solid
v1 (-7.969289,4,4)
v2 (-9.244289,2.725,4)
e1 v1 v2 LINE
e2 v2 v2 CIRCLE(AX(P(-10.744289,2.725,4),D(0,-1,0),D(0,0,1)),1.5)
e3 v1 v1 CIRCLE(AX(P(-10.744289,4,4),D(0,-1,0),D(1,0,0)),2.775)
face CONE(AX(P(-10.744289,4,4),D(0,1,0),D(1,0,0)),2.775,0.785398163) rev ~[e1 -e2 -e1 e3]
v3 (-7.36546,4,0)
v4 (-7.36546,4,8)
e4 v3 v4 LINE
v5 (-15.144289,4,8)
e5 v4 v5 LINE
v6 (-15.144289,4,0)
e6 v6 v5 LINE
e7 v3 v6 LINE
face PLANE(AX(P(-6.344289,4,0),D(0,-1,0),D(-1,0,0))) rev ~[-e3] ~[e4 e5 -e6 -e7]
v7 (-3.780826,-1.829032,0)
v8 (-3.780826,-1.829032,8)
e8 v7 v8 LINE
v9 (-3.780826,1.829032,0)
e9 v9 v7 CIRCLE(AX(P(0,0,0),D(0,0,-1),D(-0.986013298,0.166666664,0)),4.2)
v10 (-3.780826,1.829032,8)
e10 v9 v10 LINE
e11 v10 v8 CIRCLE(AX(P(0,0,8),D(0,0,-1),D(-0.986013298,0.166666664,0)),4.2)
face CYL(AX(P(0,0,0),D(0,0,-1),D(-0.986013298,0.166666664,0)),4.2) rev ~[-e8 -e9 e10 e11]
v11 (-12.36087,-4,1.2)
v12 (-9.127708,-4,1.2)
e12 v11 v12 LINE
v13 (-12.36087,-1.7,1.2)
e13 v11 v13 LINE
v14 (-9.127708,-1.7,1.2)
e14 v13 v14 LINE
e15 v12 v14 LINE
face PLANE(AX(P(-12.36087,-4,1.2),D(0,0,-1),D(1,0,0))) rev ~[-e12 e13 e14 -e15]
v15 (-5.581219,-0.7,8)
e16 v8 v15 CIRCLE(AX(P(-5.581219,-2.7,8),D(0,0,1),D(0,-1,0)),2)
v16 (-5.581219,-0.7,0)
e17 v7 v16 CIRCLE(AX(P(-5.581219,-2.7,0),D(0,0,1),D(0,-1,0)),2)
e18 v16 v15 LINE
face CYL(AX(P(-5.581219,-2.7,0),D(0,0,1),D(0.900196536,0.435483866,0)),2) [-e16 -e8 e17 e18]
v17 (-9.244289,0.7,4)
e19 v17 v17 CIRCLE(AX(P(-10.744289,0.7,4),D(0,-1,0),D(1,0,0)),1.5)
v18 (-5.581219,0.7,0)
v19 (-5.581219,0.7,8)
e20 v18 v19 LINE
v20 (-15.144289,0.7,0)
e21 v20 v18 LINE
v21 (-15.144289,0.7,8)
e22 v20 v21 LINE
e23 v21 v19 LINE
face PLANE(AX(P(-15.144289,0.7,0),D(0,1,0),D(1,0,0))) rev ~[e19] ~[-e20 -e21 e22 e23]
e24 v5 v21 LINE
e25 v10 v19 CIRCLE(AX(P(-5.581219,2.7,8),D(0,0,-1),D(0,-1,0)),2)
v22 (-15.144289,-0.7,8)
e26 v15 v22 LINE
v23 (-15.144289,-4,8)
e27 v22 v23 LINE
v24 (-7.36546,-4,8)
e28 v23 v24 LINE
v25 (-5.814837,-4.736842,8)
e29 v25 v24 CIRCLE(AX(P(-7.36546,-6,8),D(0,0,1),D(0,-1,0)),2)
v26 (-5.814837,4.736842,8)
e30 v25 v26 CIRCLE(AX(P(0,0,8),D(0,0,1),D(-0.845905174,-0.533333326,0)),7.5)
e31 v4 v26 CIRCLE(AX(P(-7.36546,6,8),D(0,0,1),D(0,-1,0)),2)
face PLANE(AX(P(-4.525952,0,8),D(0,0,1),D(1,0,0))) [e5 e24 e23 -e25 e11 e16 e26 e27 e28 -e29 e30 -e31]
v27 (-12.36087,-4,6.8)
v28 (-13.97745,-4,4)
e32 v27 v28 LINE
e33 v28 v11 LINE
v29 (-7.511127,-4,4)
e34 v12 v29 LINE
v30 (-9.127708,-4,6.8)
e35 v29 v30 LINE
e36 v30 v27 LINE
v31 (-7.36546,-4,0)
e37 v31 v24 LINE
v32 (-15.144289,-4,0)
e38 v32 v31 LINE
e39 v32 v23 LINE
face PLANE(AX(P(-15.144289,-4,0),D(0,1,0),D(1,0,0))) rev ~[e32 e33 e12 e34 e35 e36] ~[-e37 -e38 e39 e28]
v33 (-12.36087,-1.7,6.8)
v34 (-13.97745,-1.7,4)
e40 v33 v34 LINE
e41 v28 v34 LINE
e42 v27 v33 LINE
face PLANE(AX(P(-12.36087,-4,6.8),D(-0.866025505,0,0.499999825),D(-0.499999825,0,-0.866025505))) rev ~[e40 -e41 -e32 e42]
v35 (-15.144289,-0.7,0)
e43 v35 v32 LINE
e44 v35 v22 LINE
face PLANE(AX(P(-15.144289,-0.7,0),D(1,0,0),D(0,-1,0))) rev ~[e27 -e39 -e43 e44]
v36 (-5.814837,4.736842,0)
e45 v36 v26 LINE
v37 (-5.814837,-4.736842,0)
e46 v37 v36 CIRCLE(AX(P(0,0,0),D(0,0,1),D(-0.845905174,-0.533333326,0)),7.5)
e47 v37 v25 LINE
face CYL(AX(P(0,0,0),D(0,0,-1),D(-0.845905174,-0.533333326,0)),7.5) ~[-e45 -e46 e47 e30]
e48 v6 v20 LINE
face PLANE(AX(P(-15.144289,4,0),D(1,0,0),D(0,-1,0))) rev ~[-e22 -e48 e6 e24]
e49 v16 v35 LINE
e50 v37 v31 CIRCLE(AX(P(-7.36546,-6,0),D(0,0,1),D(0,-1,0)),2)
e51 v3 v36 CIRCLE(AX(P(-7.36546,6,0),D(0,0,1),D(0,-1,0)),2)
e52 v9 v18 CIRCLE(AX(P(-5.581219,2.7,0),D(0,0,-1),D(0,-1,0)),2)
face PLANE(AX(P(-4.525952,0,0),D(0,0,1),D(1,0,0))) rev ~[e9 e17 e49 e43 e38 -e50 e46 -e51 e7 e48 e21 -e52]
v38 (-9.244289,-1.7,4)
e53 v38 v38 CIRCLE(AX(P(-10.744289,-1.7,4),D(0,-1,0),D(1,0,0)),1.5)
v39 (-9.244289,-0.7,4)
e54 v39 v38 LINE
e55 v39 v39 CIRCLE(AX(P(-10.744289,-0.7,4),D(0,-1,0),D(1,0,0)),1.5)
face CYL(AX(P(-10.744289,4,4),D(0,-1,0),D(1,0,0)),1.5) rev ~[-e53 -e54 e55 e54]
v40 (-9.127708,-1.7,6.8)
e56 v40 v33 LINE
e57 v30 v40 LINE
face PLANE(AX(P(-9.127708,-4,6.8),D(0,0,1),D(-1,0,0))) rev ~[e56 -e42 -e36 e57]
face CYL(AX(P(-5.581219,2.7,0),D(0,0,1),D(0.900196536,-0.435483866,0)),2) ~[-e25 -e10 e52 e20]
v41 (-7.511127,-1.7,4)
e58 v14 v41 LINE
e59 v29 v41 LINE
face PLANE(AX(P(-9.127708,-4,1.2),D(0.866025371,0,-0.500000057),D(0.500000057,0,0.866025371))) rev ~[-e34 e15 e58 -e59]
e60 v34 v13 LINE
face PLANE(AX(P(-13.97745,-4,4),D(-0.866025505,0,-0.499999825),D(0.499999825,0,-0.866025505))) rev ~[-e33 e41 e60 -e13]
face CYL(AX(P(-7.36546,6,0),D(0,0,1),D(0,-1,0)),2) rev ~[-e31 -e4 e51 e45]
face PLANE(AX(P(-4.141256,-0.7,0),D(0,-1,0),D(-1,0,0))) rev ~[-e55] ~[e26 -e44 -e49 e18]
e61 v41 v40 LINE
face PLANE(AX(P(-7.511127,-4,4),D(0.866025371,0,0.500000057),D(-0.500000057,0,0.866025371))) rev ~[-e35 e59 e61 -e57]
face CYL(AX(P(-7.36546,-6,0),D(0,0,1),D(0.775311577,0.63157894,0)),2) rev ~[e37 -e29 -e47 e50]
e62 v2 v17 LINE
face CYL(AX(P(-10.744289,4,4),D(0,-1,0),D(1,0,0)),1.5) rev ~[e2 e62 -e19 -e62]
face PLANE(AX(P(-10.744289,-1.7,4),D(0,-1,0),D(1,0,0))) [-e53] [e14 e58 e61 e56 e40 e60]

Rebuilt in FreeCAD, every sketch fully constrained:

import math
import FreeCAD as App
import Part
import Sketcher
from FreeCAD import Vector
Q = App.Units.Quantity


def edges_at(feature, points):
    """Names of the edges that pass closest to the given points."""
    edges = feature.Shape.Edges
    near = lambda p: min(range(len(edges)), key=lambda i: edges[i].distToShape(Part.Vertex(*p))[0])
    return sorted({f"Edge{near(p) + 1}" for p in points})

doc = App.newDocument("Part")
body = doc.addObject("PartDesign::Body", "Body")

# Sketch on XY plane
sketch1 = body.newObject("Sketcher::SketchObject", "Sketch")
sketch1.AttachmentSupport = (doc.getObject("XY_Plane"), [""])
sketch1.MapMode = "FlatFace"
sketch1.addGeometry(Part.ArcOfCircle(Part.Circle(Vector(0, 0, 0), Vector(0, 0, 1), 4.2), math.radians(-170), math.radians(170)), False)
sketch1.addGeometry(Part.LineSegment(Vector(-4.1, -0.7, 0), Vector(-15.1, -0.7, 0)), False)
sketch1.addGeometry(Part.LineSegment(Vector(-15.1, -0.7, 0), Vector(-15.1, -4, 0)), False)
sketch1.addGeometry(Part.LineSegment(Vector(-15.1, -4, 0), Vector(-6.3, -4, 0)), False)
sketch1.addGeometry(Part.ArcOfCircle(Part.Circle(Vector(0, 0, 0), Vector(0, 0, 1), 7.5), math.radians(-148), math.radians(148)), False)
sketch1.addGeometry(Part.LineSegment(Vector(-6.3, 4, 0), Vector(-15.1, 4, 0)), False)
sketch1.addGeometry(Part.LineSegment(Vector(-15.1, 4, 0), Vector(-15.1, 0.7, 0)), False)
sketch1.addGeometry(Part.LineSegment(Vector(-15.1, 0.7, 0), Vector(-4.1, 0.7, 0)), False)
sketch1.addConstraint(Sketcher.Constraint("Coincident", 0, 1, 1, 1))
sketch1.addConstraint(Sketcher.Constraint("Coincident", 1, 2, 2, 1))
sketch1.addConstraint(Sketcher.Constraint("Coincident", 2, 2, 3, 1))
sketch1.addConstraint(Sketcher.Constraint("Coincident", 3, 2, 4, 1))
sketch1.addConstraint(Sketcher.Constraint("Coincident", 4, 2, 5, 1))
sketch1.addConstraint(Sketcher.Constraint("Coincident", 5, 2, 6, 1))
sketch1.addConstraint(Sketcher.Constraint("Coincident", 6, 2, 7, 1))
sketch1.addConstraint(Sketcher.Constraint("Coincident", 7, 2, 0, 2))
sketch1.addConstraint(Sketcher.Constraint("Horizontal", 1))
sketch1.addConstraint(Sketcher.Constraint("Vertical", 2))
sketch1.addConstraint(Sketcher.Constraint("Horizontal", 3))
sketch1.addConstraint(Sketcher.Constraint("Horizontal", 5))
sketch1.addConstraint(Sketcher.Constraint("Vertical", 6))
sketch1.addConstraint(Sketcher.Constraint("Horizontal", 7))
sketch1.addConstraint(Sketcher.Constraint("Coincident", 0, 3, -1, 1))
sketch1.addConstraint(Sketcher.Constraint("Coincident", 4, 3, -1, 1))
sketch1.addConstraint(Sketcher.Constraint("Symmetric", 2, 2, 5, 2, -1))
sketch1.addConstraint(Sketcher.Constraint("Vertical", 0, 1, 7, 2))
sketch1.addConstraint(Sketcher.Constraint("Radius", 0, Q("4.2 mm")))
sketch1.addConstraint(Sketcher.Constraint("Radius", 4, Q("7.5 mm")))
sketch1.addConstraint(Sketcher.Constraint("DistanceX", 3, 1, 3, 2, Q("8.8 mm")))
sketch1.addConstraint(Sketcher.Constraint("DistanceY", 2, 2, 2, 1, Q("3.3 mm")))
sketch1.addConstraint(Sketcher.Constraint("DistanceY", 2, 2, -1, 1, Q("4 mm")))
pad1 = body.newObject("PartDesign::Pad", "Pad")
pad1.Profile = sketch1
pad1.Length = 8

# Sketch on XZ plane
sketch2 = body.newObject("Sketcher::SketchObject", "Sketch001")
sketch2.AttachmentSupport = (doc.getObject("XZ_Plane"), [""])
sketch2.MapMode = "FlatFace"
sketch2.AttachmentOffset = App.Placement(Vector(0, 0, 4), App.Rotation())
sketch2.addGeometry(Part.LineSegment(Vector(-12.4, 1.2, 0), Vector(-9.1, 1.2, 0)), False)
sketch2.addGeometry(Part.LineSegment(Vector(-9.1, 1.2, 0), Vector(-7.5, 4, 0)), False)
sketch2.addGeometry(Part.LineSegment(Vector(-7.5, 4, 0), Vector(-9.1, 6.8, 0)), False)
sketch2.addGeometry(Part.LineSegment(Vector(-9.1, 6.8, 0), Vector(-12.4, 6.8, 0)), False)
sketch2.addGeometry(Part.LineSegment(Vector(-12.4, 6.8, 0), Vector(-14, 4, 0)), False)
sketch2.addGeometry(Part.LineSegment(Vector(-14, 4, 0), Vector(-12.4, 1.2, 0)), False)
sketch2.addConstraint(Sketcher.Constraint("Coincident", 0, 2, 1, 1))
sketch2.addConstraint(Sketcher.Constraint("Coincident", 1, 2, 2, 1))
sketch2.addConstraint(Sketcher.Constraint("Coincident", 2, 2, 3, 1))
sketch2.addConstraint(Sketcher.Constraint("Coincident", 3, 2, 4, 1))
sketch2.addConstraint(Sketcher.Constraint("Coincident", 4, 2, 5, 1))
sketch2.addConstraint(Sketcher.Constraint("Coincident", 5, 2, 0, 1))
sketch2.addConstraint(Sketcher.Constraint("Horizontal", 0))
sketch2.addConstraint(Sketcher.Constraint("Horizontal", 3))
sketch2.addConstraint(Sketcher.Constraint("Parallel", 1, 4))
sketch2.addConstraint(Sketcher.Constraint("Parallel", 2, 5))
sketch2.addConstraint(Sketcher.Constraint("Horizontal", 1, 2, 4, 2))
sketch2.addConstraint(Sketcher.Constraint("Vertical", 0, 2, 2, 2))
sketch2.addConstraint(Sketcher.Constraint("Vertical", 3, 2, 5, 2))
sketch2.addConstraint(Sketcher.Constraint("Angle", 1, Q("59.999996 deg")))
sketch2.addConstraint(Sketcher.Constraint("DistanceY", -1, 1, 1, 2, Q("4 mm")))
sketch2.addConstraint(Sketcher.Constraint("DistanceY", -1, 1, 0, 2, Q("1.2 mm")))
sketch2.addConstraint(Sketcher.Constraint("DistanceX", 0, 1, 0, 2, Q("3.233162 mm")))
sketch2.addConstraint(Sketcher.Constraint("DistanceX", 3, 2, -1, 1, Q("12.36087 mm")))
pocket1 = body.newObject("PartDesign::Pocket", "Pocket")
pocket1.Profile = sketch2
pocket1.Length = 2.3

# Sketch on XZ plane
sketch3 = body.newObject("Sketcher::SketchObject", "Sketch002")
sketch3.AttachmentSupport = (doc.getObject("XZ_Plane"), [""])
sketch3.MapMode = "FlatFace"
sketch3.AttachmentOffset = App.Placement(Vector(0, 0, -4), App.Rotation())
sketch3.addGeometry(Part.Circle(Vector(-10.7, 4, 0), Vector(0, 0, 1), 1.5), False)
sketch3.addConstraint(Sketcher.Constraint("Diameter", 0, Q("3 mm")))
sketch3.addConstraint(Sketcher.Constraint("DistanceY", -1, 1, 0, 3, Q("4 mm")))
sketch3.addConstraint(Sketcher.Constraint("DistanceX", 0, 3, -1, 1, Q("10.744289 mm")))
doc.recompute()
hole = body.newObject("PartDesign::Hole", "Hole")
hole.Profile = sketch3
hole.ThreadType = "None"
hole.Diameter = 3
hole.DepthType = "ThroughAll"
hole.HoleCutType = "Countersink"
hole.HoleCutDiameter = 5.55
hole.HoleCutCountersinkAngle = 90
hole.Reversed = True
doc.recompute()

fillet = body.newObject("PartDesign::Fillet", "Fillet")
fillet.Base = (hole, edges_at(hole, [
    (-4.141, -0.7, 4),
    (-4.141, 0.7, 4),
    (-6.344, -4, 4),
    (-6.344, 4, 4),
]))
fillet.Radius = 2

doc.recompute()
